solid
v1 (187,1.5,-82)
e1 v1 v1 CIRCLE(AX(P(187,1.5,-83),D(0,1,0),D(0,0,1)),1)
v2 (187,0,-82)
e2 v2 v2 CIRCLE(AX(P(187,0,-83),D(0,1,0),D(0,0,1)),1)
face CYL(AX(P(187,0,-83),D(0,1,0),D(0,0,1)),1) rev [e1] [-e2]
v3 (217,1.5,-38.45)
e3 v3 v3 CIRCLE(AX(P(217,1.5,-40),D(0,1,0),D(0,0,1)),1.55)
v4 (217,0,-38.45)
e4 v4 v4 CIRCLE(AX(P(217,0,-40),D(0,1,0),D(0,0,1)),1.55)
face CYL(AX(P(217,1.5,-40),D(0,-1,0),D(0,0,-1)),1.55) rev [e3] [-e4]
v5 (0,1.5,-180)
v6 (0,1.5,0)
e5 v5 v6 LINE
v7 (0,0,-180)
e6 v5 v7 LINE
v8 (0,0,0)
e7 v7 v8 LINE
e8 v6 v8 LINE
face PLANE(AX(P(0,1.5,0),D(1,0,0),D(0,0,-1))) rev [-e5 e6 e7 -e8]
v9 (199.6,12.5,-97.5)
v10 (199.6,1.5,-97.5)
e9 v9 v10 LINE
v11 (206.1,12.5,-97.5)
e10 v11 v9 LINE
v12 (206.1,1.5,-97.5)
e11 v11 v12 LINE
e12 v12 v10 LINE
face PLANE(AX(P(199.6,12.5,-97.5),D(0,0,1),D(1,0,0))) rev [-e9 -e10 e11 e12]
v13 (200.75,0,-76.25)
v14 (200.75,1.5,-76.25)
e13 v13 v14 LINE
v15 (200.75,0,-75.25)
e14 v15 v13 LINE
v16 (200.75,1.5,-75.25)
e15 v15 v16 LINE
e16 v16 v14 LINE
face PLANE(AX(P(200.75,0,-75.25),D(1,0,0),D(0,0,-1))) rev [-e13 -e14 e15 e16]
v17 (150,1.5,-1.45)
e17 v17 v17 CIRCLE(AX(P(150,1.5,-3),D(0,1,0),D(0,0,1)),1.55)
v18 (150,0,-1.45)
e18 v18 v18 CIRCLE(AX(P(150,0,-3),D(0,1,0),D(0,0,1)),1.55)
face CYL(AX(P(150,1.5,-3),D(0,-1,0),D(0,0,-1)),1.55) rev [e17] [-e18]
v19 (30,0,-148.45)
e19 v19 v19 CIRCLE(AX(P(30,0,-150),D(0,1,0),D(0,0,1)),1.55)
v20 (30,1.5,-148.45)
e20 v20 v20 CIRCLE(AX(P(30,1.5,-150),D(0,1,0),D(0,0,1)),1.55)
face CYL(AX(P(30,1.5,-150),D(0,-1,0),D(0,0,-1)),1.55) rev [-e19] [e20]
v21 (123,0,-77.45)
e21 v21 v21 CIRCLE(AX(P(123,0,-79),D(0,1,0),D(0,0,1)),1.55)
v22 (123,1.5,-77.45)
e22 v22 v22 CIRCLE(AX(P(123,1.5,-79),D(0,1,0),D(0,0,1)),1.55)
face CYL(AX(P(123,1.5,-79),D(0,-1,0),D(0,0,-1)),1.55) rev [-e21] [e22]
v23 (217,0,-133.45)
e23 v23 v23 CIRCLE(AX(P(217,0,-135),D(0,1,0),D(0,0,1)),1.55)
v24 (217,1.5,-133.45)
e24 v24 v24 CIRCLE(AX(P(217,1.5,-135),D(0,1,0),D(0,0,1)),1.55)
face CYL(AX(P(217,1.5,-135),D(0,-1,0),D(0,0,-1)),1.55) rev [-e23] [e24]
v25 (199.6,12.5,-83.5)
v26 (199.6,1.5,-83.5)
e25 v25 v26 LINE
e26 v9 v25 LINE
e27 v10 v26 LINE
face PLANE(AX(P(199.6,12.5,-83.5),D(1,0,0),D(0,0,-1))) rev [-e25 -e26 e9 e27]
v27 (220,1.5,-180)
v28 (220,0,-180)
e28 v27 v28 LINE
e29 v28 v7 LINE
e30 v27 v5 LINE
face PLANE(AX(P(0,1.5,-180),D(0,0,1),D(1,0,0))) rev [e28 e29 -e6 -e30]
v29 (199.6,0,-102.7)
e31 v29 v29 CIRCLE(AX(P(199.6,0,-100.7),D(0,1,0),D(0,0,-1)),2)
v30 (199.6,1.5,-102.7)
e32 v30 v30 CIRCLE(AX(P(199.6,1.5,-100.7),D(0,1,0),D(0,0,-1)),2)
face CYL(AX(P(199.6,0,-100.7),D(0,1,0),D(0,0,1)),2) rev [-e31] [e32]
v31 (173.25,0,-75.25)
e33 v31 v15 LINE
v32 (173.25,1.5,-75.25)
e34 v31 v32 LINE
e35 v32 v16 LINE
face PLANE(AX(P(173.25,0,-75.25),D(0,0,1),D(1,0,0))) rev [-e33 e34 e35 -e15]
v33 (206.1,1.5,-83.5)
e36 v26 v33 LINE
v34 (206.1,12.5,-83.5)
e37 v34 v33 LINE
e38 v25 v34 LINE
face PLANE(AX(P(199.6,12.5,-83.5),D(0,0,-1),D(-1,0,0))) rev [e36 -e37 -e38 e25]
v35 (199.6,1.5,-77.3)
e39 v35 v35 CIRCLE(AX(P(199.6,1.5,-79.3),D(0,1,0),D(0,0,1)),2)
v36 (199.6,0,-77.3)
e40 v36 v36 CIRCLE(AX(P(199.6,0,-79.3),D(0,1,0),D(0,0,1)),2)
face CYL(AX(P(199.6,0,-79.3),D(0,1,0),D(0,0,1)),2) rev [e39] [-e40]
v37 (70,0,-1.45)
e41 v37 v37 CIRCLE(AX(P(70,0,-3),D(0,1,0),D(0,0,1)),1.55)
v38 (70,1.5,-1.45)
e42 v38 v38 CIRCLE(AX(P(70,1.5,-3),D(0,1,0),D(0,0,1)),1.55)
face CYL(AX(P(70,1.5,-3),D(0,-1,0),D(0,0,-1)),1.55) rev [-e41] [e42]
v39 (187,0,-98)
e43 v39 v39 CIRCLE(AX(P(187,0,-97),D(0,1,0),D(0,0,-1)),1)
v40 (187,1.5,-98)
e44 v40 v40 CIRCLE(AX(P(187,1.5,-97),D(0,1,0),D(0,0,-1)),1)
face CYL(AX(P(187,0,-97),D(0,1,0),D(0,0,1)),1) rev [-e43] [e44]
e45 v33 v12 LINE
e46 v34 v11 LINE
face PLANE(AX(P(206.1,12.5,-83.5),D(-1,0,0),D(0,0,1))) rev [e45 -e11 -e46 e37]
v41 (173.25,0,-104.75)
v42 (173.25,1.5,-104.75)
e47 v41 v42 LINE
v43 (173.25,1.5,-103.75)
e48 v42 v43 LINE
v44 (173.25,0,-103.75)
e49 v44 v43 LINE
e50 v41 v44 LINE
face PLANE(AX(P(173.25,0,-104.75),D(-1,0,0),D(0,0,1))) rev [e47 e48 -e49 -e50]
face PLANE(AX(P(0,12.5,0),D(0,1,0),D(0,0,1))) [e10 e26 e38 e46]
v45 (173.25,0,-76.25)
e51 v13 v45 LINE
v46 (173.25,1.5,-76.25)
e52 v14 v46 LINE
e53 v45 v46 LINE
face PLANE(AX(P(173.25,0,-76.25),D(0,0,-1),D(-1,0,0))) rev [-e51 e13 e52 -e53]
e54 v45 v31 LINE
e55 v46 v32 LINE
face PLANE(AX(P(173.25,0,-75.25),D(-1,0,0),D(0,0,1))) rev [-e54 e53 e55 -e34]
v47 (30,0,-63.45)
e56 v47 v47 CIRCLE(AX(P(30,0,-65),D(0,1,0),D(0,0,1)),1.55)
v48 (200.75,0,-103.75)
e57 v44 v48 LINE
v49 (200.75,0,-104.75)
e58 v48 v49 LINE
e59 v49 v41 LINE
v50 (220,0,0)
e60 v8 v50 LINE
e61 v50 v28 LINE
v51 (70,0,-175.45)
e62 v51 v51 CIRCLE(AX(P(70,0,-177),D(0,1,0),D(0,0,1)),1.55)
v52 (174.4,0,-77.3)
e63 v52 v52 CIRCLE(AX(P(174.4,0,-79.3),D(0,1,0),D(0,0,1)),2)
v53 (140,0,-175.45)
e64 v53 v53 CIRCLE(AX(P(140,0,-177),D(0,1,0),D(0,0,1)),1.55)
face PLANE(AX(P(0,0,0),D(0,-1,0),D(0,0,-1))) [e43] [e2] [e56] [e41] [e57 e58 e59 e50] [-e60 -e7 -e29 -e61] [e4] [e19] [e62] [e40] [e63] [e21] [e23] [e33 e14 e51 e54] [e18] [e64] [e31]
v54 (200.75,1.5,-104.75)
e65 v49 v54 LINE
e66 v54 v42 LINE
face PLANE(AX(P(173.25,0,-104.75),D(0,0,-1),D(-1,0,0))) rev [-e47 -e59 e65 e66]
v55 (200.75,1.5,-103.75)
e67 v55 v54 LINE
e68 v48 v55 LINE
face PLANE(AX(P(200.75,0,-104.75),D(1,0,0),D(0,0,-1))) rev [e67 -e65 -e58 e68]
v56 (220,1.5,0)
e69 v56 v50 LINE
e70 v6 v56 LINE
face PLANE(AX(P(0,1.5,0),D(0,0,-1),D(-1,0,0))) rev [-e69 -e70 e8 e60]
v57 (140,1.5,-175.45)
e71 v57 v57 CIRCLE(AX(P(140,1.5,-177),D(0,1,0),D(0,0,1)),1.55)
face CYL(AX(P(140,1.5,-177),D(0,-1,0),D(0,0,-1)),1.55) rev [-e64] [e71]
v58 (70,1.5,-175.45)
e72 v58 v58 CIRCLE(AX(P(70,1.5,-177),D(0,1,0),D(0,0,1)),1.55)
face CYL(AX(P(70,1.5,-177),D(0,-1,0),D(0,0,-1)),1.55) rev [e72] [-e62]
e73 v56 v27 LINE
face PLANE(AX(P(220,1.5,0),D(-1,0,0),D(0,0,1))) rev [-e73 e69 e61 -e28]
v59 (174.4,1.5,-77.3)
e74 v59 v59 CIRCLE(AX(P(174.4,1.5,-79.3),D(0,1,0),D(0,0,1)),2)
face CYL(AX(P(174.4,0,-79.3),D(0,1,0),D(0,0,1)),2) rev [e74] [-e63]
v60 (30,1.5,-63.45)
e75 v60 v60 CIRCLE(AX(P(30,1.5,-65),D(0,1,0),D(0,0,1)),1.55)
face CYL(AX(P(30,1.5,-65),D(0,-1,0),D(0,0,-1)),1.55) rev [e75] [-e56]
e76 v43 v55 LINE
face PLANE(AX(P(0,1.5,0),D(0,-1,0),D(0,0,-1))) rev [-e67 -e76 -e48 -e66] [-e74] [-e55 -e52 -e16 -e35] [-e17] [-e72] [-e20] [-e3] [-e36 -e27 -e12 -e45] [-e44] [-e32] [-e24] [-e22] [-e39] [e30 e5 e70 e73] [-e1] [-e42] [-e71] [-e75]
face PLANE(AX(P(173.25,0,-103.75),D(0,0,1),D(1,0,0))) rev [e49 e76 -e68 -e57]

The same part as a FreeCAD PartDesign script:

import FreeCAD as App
import Part
import Sketcher

V = App.Vector
Q = App.Units.Quantity


def add_polygon(sketch, points):
    """Adds a closed chain of lines whose ends are joined by coincident constraints."""
    first, n = sketch.GeometryCount, len(points)
    for a, b in zip(points, points[1:] + points[:1]):
        sketch.addGeometry(Part.LineSegment(App.Vector(*a, 0), App.Vector(*b, 0)), False)
    for i in range(n):
        sketch.addConstraint(Sketcher.Constraint("Coincident", first + i, 2, first + (i + 1) % n, 1))

doc = App.newDocument("Part")
body = doc.addObject("PartDesign::Body", "Body")

sketch1 = body.newObject("Sketcher::SketchObject", "Sketch")
sketch1.AttachmentSupport = (doc.getObject("XZ_Plane"), [""])
sketch1.MapMode = "FlatFace"
add_polygon(sketch1, [(0, -180), (0, 0), (220, 0), (220, -180)])
sketch1.addGeometry(Part.Circle(V(70, -3, 0), V(0, 0, 1), 1.55), False)
sketch1.addGeometry(Part.Circle(V(30, -65, 0), V(0, 0, 1), 1.55), False)
sketch1.addGeometry(Part.Circle(V(123, -79, 0), V(0, 0, 1), 1.55), False)
sketch1.addGeometry(Part.Circle(V(150, -3, 0), V(0, 0, 1), 1.55), False)
sketch1.addGeometry(Part.Circle(V(217, -40, 0), V(0, 0, 1), 1.55), False)
sketch1.addGeometry(Part.Circle(V(30, -150, 0), V(0, 0, 1), 1.55), False)
sketch1.addGeometry(Part.Circle(V(70, -177, 0), V(0, 0, 1), 1.55), False)
sketch1.addGeometry(Part.Circle(V(140, -177, 0), V(0, 0, 1), 1.55), False)
sketch1.addGeometry(Part.Circle(V(217, -135, 0), V(0, 0, 1), 1.55), False)
sketch1.addConstraint(Sketcher.Constraint("Vertical", 0))
sketch1.addConstraint(Sketcher.Constraint("Horizontal", 1))
sketch1.addConstraint(Sketcher.Constraint("Vertical", 2))
sketch1.addConstraint(Sketcher.Constraint("Horizontal", 3))
sketch1.addConstraint(Sketcher.Constraint("Coincident", 0, 2, -1, 1))
sketch1.addConstraint(Sketcher.Constraint("Equal", 4, 5))
sketch1.addConstraint(Sketcher.Constraint("Equal", 5, 6))
sketch1.addConstraint(Sketcher.Constraint("Equal", 6, 7))
sketch1.addConstraint(Sketcher.Constraint("Equal", 7, 8))
sketch1.addConstraint(Sketcher.Constraint("Equal", 8, 9))
sketch1.addConstraint(Sketcher.Constraint("Equal", 9, 10))
sketch1.addConstraint(Sketcher.Constraint("Equal", 10, 11))
sketch1.addConstraint(Sketcher.Constraint("Equal", 11, 12))
sketch1.addConstraint(Sketcher.Constraint("Horizontal", 4, 3, 7, 3))
sketch1.addConstraint(Sketcher.Constraint("Horizontal", 10, 3, 11, 3))
sketch1.addConstraint(Sketcher.Constraint("Vertical", 5, 3, 9, 3))
sketch1.addConstraint(Sketcher.Constraint("Vertical", 4, 3, 10, 3))
sketch1.addConstraint(Sketcher.Constraint("Vertical", 8, 3, 12, 3))
sketch1.addConstraint(Sketcher.Constraint("Diameter", 4, Q("3.1 mm")))
sketch1.addConstraint(Sketcher.Constraint("DistanceX", 1, 1, 1, 2, Q("220 mm")))
sketch1.addConstraint(Sketcher.Constraint("DistanceY", 0, 1, 0, 2, Q("180 mm")))
sketch1.addConstraint(Sketcher.Constraint("DistanceX", -1, 1, 4, 3, Q("70 mm")))
sketch1.addConstraint(Sketcher.Constraint("DistanceY", 4, 3, -1, 1, Q("3 mm")))
sketch1.addConstraint(Sketcher.Constraint("DistanceX", -1, 1, 5, 3, Q("30 mm")))
sketch1.addConstraint(Sketcher.Constraint("DistanceY", 5, 3, -1, 1, Q("65 mm")))
sketch1.addConstraint(Sketcher.Constraint("DistanceX", -1, 1, 6, 3, Q("123 mm")))
sketch1.addConstraint(Sketcher.Constraint("DistanceY", 6, 3, -1, 1, Q("79 mm")))
sketch1.addConstraint(Sketcher.Constraint("DistanceX", -1, 1, 7, 3, Q("150 mm")))
sketch1.addConstraint(Sketcher.Constraint("DistanceX", -1, 1, 8, 3, Q("217 mm")))
sketch1.addConstraint(Sketcher.Constraint("DistanceY", 8, 3, -1, 1, Q("40 mm")))
sketch1.addConstraint(Sketcher.Constraint("DistanceY", 9, 3, -1, 1, Q("150 mm")))
sketch1.addConstraint(Sketcher.Constraint("DistanceY", 10, 3, -1, 1, Q("177 mm")))
sketch1.addConstraint(Sketcher.Constraint("DistanceX", -1, 1, 11, 3, Q("140 mm")))
sketch1.addConstraint(Sketcher.Constraint("DistanceY", 12, 3, -1, 1, Q("135 mm")))
pad1 = body.newObject("PartDesign::Pad", "Pad")
pad1.Profile = sketch1
pad1.Length = 1.5
pad1.Reversed = True

sketch2 = body.newObject("Sketcher::SketchObject", "Sketch001")
sketch2.AttachmentSupport = (doc.getObject("XZ_Plane"), [""])
sketch2.MapMode = "FlatFace"
sketch2.AttachmentOffset = App.Placement(V(0, 0, -1.5), App.Rotation())
sketch2.addGeometry(Part.Circle(V(187, -83, 0), V(0, 0, 1), 1), False)
sketch2.addGeometry(Part.Circle(V(187, -97, 0), V(0, 0, 1), 1), False)
sketch2.addGeometry(Part.Circle(V(199.6, -79.3, 0), V(0, 0, 1), 2), False)
sketch2.addGeometry(Part.Circle(V(199.6, -100.7, 0), V(0, 0, 1), 2), False)
sketch2.addGeometry(Part.Circle(V(174.4, -79.3, 0), V(0, 0, 1), 2), False)
add_polygon(sketch2, [(173.25, -76.25), (173.25, -75.25), (200.75, -75.25), (200.75, -76.25)])
add_polygon(sketch2, [(173.25, -104.75), (173.25, -103.75), (200.75, -103.75), (200.75, -104.75)])
sketch2.addConstraint(Sketcher.Constraint("Vertical", 5))
sketch2.addConstraint(Sketcher.Constraint("Horizontal", 6))
sketch2.addConstraint(Sketcher.Constraint("Vertical", 7))
sketch2.addConstraint(Sketcher.Constraint("Horizontal", 8))
sketch2.addConstraint(Sketcher.Constraint("Vertical", 9))
sketch2.addConstraint(Sketcher.Constraint("Horizontal", 10))
sketch2.addConstraint(Sketcher.Constraint("Vertical", 11))
sketch2.addConstraint(Sketcher.Constraint("Horizontal", 12))
sketch2.addConstraint(Sketcher.Constraint("Equal", 0, 1))
sketch2.addConstraint(Sketcher.Constraint("Equal", 2, 3))
sketch2.addConstraint(Sketcher.Constraint("Equal", 3, 4))
sketch2.addConstraint(Sketcher.Constraint("Horizontal", 2, 3, 4, 3))
sketch2.addConstraint(Sketcher.Constraint("Vertical", 0, 3, 1, 3))
sketch2.addConstraint(Sketcher.Constraint("Vertical", 2, 3, 3, 3))
sketch2.addConstraint(Sketcher.Constraint("Vertical", 8, 2, 9, 2))
sketch2.addConstraint(Sketcher.Constraint("Vertical", 7, 2, 10, 2))
sketch2.addConstraint(Sketcher.Constraint("Equal", 7, 9))
sketch2.addConstraint(Sketcher.Constraint("Diameter", 0, Q("2 mm")))
sketch2.addConstraint(Sketcher.Constraint("Diameter", 2, Q("4 mm")))
sketch2.addConstraint(Sketcher.Constraint("DistanceY", 5, 1, 5, 2, Q("1 mm")))
sketch2.addConstraint(Sketcher.Constraint("DistanceX", 6, 1, 6, 2, Q("27.5 mm")))
sketch2.addConstraint(Sketcher.Constraint("DistanceX", -1, 1, 0, 3, Q("187 mm")))
sketch2.addConstraint(Sketcher.Constraint("DistanceY", 0, 3, -1, 1, Q("83 mm")))
sketch2.addConstraint(Sketcher.Constraint("DistanceY", 1, 3, -1, 1, Q("97 mm")))
sketch2.addConstraint(Sketcher.Constraint("DistanceX", -1, 1, 2, 3, Q("199.6 mm")))
sketch2.addConstraint(Sketcher.Constraint("DistanceY", 2, 3, -1, 1, Q("79.3 mm")))
sketch2.addConstraint(Sketcher.Constraint("DistanceY", 3, 3, -1, 1, Q("100.7 mm")))
sketch2.addConstraint(Sketcher.Constraint("DistanceX", -1, 1, 4, 3, Q("174.4 mm")))
sketch2.addConstraint(Sketcher.Constraint("DistanceY", 9, 2, 8, 2, Q("27.5 mm")))
sketch2.addConstraint(Sketcher.Constraint("DistanceX", -1, 1, 5, 2, Q("173.25 mm")))
sketch2.addConstraint(Sketcher.Constraint("DistanceY", 5, 2, -1, 1, Q("75.25 mm")))
pocket1 = body.newObject("PartDesign::Pocket", "Pocket")
pocket1.Profile = sketch2
pocket1.Type = "ThroughAll"
pocket1.Reversed = True

sketch3 = body.newObject("Sketcher::SketchObject", "Sketch002")
sketch3.AttachmentSupport = (doc.getObject("XZ_Plane"), [""])
sketch3.MapMode = "FlatFace"
sketch3.AttachmentOffset = App.Placement(V(0, 0, -1.5), App.Rotation())
add_polygon(sketch3, [(199.6, -97.5), (199.6, -83.5), (206.1, -83.5), (206.1, -97.5)])
sketch3.addConstraint(Sketcher.Constraint("Vertical", 0))
sketch3.addConstraint(Sketcher.Constraint("Horizontal", 1))
sketch3.addConstraint(Sketcher.Constraint("Vertical", 2))
sketch3.addConstraint(Sketcher.Constraint("Horizontal", 3))
sketch3.addConstraint(Sketcher.Constraint("DistanceY", 0, 1, 0, 2, Q("14 mm")))
sketch3.addConstraint(Sketcher.Constraint("DistanceX", 1, 1, 1, 2, Q("6.5 mm")))
sketch3.addConstraint(Sketcher.Constraint("DistanceX", -1, 1, 0, 2, Q("199.6 mm")))
sketch3.addConstraint(Sketcher.Constraint("DistanceY", 0, 2, -1, 1, Q("83.5 mm")))
pad2 = body.newObject("PartDesign::Pad", "Pad001")
pad2.Profile = sketch3
pad2.Length = 11
pad2.Reversed = True

doc.recompute()
